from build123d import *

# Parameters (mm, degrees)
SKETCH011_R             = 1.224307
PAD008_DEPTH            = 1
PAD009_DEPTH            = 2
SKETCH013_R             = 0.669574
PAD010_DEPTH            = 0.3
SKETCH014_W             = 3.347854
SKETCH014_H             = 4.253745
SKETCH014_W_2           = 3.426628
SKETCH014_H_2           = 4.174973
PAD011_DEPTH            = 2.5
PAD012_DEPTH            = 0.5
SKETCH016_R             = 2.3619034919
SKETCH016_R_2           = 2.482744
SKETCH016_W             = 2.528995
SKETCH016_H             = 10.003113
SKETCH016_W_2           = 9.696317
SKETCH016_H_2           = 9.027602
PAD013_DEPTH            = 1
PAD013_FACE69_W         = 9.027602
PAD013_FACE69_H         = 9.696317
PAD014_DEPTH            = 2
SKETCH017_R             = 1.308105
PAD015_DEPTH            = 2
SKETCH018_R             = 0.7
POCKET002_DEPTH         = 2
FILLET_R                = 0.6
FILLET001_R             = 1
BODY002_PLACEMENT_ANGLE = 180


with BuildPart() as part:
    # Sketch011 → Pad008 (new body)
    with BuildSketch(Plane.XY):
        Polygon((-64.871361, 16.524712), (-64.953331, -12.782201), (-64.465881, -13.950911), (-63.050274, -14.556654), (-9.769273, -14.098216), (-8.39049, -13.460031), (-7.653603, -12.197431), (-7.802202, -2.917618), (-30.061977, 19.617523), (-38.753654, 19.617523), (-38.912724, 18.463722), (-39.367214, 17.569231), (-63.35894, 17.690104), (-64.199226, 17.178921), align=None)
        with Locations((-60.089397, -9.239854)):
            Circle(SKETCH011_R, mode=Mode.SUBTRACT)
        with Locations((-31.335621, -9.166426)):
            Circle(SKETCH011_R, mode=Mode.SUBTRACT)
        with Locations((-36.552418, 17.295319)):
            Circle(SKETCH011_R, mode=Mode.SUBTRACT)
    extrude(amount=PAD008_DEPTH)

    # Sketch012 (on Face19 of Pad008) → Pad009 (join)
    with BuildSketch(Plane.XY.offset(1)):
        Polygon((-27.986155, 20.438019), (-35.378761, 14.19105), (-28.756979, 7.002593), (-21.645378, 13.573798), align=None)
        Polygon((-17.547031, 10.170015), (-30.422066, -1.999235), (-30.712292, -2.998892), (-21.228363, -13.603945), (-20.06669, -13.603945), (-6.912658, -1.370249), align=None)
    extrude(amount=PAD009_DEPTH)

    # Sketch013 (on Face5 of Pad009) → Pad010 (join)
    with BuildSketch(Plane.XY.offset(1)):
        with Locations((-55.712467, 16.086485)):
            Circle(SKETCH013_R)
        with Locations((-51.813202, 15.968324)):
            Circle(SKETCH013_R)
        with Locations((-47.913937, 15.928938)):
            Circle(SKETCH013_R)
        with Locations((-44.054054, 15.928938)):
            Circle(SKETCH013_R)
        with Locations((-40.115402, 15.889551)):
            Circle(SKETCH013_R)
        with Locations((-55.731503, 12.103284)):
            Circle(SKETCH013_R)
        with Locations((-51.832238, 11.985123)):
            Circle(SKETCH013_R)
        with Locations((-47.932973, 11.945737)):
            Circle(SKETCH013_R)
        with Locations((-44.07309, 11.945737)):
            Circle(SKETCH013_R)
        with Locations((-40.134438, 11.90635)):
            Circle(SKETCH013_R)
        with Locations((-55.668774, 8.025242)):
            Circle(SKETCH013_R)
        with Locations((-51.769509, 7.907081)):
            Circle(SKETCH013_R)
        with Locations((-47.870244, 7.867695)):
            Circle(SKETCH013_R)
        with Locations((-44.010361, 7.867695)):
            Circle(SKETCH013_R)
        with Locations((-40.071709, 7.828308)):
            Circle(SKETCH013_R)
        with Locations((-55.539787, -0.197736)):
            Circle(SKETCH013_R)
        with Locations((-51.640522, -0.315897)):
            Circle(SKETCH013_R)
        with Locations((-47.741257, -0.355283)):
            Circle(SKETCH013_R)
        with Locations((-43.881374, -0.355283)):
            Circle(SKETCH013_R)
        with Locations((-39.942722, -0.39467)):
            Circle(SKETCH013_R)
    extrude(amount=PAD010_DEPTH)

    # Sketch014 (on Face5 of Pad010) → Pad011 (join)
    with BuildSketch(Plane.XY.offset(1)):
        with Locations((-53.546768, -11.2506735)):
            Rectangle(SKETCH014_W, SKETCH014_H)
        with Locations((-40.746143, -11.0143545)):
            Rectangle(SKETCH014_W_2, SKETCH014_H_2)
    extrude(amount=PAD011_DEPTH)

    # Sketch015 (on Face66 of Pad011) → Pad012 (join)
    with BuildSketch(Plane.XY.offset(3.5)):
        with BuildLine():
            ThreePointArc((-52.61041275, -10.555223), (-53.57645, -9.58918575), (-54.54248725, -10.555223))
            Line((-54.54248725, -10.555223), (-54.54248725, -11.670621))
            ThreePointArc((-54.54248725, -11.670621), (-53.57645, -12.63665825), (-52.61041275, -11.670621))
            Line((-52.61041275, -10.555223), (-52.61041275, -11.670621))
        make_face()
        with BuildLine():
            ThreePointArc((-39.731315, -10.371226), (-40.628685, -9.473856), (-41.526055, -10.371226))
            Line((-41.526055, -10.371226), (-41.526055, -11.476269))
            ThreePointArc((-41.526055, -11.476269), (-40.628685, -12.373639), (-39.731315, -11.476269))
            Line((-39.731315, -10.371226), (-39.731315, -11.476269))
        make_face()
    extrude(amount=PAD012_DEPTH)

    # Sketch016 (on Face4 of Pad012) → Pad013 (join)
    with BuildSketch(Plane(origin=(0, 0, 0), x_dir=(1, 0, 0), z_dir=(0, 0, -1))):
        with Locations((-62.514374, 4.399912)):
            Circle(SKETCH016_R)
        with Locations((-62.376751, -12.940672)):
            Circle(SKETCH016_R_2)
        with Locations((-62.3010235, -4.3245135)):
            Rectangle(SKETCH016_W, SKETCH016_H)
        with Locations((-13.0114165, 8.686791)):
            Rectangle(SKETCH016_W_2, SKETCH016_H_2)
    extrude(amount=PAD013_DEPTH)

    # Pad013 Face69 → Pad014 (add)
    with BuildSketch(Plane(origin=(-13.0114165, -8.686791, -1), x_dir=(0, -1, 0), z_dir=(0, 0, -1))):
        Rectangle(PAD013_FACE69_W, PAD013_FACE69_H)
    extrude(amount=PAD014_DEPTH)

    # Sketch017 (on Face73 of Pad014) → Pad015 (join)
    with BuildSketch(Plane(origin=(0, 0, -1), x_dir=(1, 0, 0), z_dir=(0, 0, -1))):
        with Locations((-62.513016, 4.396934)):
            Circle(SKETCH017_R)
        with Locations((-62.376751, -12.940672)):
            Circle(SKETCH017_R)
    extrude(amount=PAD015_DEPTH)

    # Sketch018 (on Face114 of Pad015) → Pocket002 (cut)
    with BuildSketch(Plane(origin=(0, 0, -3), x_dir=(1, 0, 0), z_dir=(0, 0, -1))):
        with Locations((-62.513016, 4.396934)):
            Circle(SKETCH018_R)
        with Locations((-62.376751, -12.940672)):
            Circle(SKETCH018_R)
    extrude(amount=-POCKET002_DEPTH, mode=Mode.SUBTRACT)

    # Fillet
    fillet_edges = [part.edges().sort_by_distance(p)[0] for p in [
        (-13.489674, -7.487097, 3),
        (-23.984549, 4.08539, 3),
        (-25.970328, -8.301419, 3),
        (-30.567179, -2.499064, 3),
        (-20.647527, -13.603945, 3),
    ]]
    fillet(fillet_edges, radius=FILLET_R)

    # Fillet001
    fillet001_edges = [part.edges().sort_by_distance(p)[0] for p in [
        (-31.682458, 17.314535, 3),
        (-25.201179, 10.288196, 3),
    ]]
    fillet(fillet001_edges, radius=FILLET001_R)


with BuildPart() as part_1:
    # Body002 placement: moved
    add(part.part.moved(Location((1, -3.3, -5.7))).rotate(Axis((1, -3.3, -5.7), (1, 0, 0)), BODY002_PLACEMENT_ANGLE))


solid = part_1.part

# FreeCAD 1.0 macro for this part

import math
import FreeCAD as App
import Part
import Sketcher

V = App.Vector
Q = App.Units.Quantity


def edges_at(feature, points):
    """Names of the edges that pass closest to the given points."""
    edges = feature.Shape.Edges
    near = lambda p: min(range(len(edges)), key=lambda i: edges[i].distToShape(Part.Vertex(*p))[0])
    return sorted({f"Edge{near(p) + 1}" for p in points})

doc = App.newDocument("Part")
body = doc.addObject("PartDesign::Body", "Body")

# Sketch on XY plane
sketch1 = doc.addObject("Sketcher::SketchObject", "Sketch")
body.addObject(sketch1)
sketch1.AttachmentSupport = (doc.XY_Plane, [""])
sketch1.MapMode = "FlatFace"
sketch1.addGeometry(Part.LineSegment(V(-64.9, 16.5, 0), V(-65, -12.8, 0)), False)
sketch1.addGeometry(Part.LineSegment(V(-65, -12.8, 0), V(-64.5, -14, 0)), False)
sketch1.addGeometry(Part.LineSegment(V(-64.5, -14, 0), V(-63.1, -14.6, 0)), False)
sketch1.addGeometry(Part.LineSegment(V(-63.1, -14.6, 0), V(-9.8, -14.1, 0)), False)
sketch1.addGeometry(Part.LineSegment(V(-9.8, -14.1, 0), V(-8.4, -13.5, 0)), False)
sketch1.addGeometry(Part.LineSegment(V(-8.4, -13.5, 0), V(-7.7, -12.2, 0)), False)
sketch1.addGeometry(Part.LineSegment(V(-7.7, -12.2, 0), V(-7.8, -2.9, 0)), False)
sketch1.addGeometry(Part.LineSegment(V(-7.8, -2.9, 0), V(-30.1, 19.6, 0)), False)
sketch1.addGeometry(Part.LineSegment(V(-30.1, 19.6, 0), V(-38.8, 19.6, 0)), False)
sketch1.addGeometry(Part.LineSegment(V(-38.8, 19.6, 0), V(-38.9, 18.5, 0)), False)
sketch1.addGeometry(Part.LineSegment(V(-38.9, 18.5, 0), V(-39.4, 17.6, 0)), False)
sketch1.addGeometry(Part.LineSegment(V(-39.4, 17.6, 0), V(-63.4, 17.7, 0)), False)
sketch1.addGeometry(Part.LineSegment(V(-63.4, 17.7, 0), V(-64.2, 17.2, 0)), False)
sketch1.addGeometry(Part.LineSegment(V(-64.2, 17.2, 0), V(-64.9, 16.5, 0)), False)
sketch1.addGeometry(Part.Circle(V(-60.1, -9.2, 0), V(0, 0, 1), 1.2), False)
sketch1.addGeometry(Part.Circle(V(-31.3, -9.2, 0), V(0, 0, 1), 1.2), False)
sketch1.addGeometry(Part.Circle(V(-36.6, 17.3, 0), V(0, 0, 1), 1.2), False)
sketch1.addConstraint(Sketcher.Constraint("Coincident", 0, 2, 1, 1))
sketch1.addConstraint(Sketcher.Constraint("Coincident", 1, 2, 2, 1))
sketch1.addConstraint(Sketcher.Constraint("Coincident", 2, 2, 3, 1))
sketch1.addConstraint(Sketcher.Constraint("Coincident", 3, 2, 4, 1))
sketch1.addConstraint(Sketcher.Constraint("Coincident", 4, 2, 5, 1))
sketch1.addConstraint(Sketcher.Constraint("Coincident", 5, 2, 6, 1))
sketch1.addConstraint(Sketcher.Constraint("Coincident", 6, 2, 7, 1))
sketch1.addConstraint(Sketcher.Constraint("Coincident", 7, 2, 8, 1))
sketch1.addConstraint(Sketcher.Constraint("Coincident", 8, 2, 9, 1))
sketch1.addConstraint(Sketcher.Constraint("Coincident", 9, 2, 10, 1))
sketch1.addConstraint(Sketcher.Constraint("Coincident", 10, 2, 11, 1))
sketch1.addConstraint(Sketcher.Constraint("Coincident", 11, 2, 12, 1))
sketch1.addConstraint(Sketcher.Constraint("Coincident", 12, 2, 13, 1))
sketch1.addConstraint(Sketcher.Constraint("Coincident", 13, 2, 0, 1))
sketch1.addConstraint(Sketcher.Constraint("Horizontal", 8))
sketch1.addConstraint(Sketcher.Constraint("Equal", 14, 15))
sketch1.addConstraint(Sketcher.Constraint("Equal", 15, 16))
sketch1.addConstraint(Sketcher.Constraint("Diameter", 14, Q("2.448614 mm")))
sketch1.addConstraint(Sketcher.Constraint("DistanceX", 2, 2, 3, 2, Q("53.281001 mm")))
sketch1.addConstraint(Sketcher.Constraint("DistanceY", 0, 2, -1, 1, Q("12.782201 mm")))
sketch1.addConstraint(Sketcher.Constraint("DistanceY", 2, 2, 14, 3, Q("5.3168 mm")))
sketch1.addConstraint(Sketcher.Constraint("DistanceY", 4, 2, 5, 2, Q("1.2626 mm")))
sketch1.addConstraint(Sketcher.Constraint("DistanceX", 6, 2, 5, 2, Q("0.148599 mm")))
sketch1.addConstraint(Sketcher.Constraint("DistanceY", 9, 2, 8, 2, Q("1.153801 mm")))
sketch1.addConstraint(Sketcher.Constraint("DistanceX", 12, 2, 9, 2, Q("25.286502 mm")))
sketch1.addConstraint(Sketcher.Constraint("DistanceY", 12, 2, 9, 2, Q("1.284801 mm")))
sketch1.addConstraint(Sketcher.Constraint("Distance", 1, Q("1.26629 mm")))
sketch1.addConstraint(Sketcher.Constraint("Distance", 11, Q("23.99203 mm")))
sketch1.addConstraint(Sketcher.Constraint("Distance", 12, Q("0.983559 mm")))
sketch1.addConstraint(Sketcher.Constraint("DistanceX", 8, 2, 8, 1, Q("8.691677 mm")))
sketch1.addConstraint(Sketcher.Constraint("DistanceX", 15, 3, -1, 1, Q("31.335621 mm")))
sketch1.addConstraint(Sketcher.Constraint("DistanceX", 16, 3, -1, 1, Q("36.552418 mm")))
sketch1.addConstraint(Sketcher.Constraint("DistanceY", -1, 1, 16, 3, Q("17.295319 mm")))
sketch1.addConstraint(Sketcher.Constraint("DistanceX", 0, 2, -1, 1, Q("64.953331 mm")))
sketch1.addConstraint(Sketcher.Constraint("DistanceX", 1, 2, -1, 1, Q("64.465881 mm")))
sketch1.addConstraint(Sketcher.Constraint("DistanceX", 4, 2, -1, 1, Q("8.39049 mm")))
sketch1.addConstraint(Sketcher.Constraint("DistanceY", 4, 2, -1, 1, Q("13.460031 mm")))
sketch1.addConstraint(Sketcher.Constraint("DistanceY", 6, 2, -1, 1, Q("2.917618 mm")))
sketch1.addConstraint(Sketcher.Constraint("DistanceY", -1, 1, 10, 2, Q("17.569231 mm")))
sketch1.addConstraint(Sketcher.Constraint("DistanceX", 11, 2, -1, 1, Q("63.35894 mm")))
sketch1.addConstraint(Sketcher.Constraint("DistanceY", -1, 1, 12, 2, Q("17.178921 mm")))
sketch1.addConstraint(Sketcher.Constraint("DistanceX", 13, 2, -1, 1, Q("64.871361 mm")))
sketch1.addConstraint(Sketcher.Constraint("DistanceX", 14, 3, 16, 3, Q("23.536979 mm")))
sketch1.addConstraint(Sketcher.Constraint("DistanceY", 2, 2, 15, 3, Q("5.390228 mm")))
sketch1.addConstraint(Sketcher.Constraint("DistanceY", 3, 2, 15, 3, Q("4.93179 mm")))
sketch1.addConstraint(Sketcher.Constraint("DistanceX", 3, 2, 5, 2, Q("2.11567 mm")))
sketch1.addConstraint(Sketcher.Constraint("DistanceX", 15, 3, 6, 2, Q("23.533419 mm")))
sketch1.addConstraint(Sketcher.Constraint("DistanceX", 16, 3, 7, 2, Q("6.490441 mm")))
sketch1.addConstraint(Sketcher.Constraint("DistanceY", 15, 3, 7, 2, Q("28.783949 mm")))
sketch1.addConstraint(Sketcher.Constraint("DistanceX", 9, 2, 8, 2, Q("0.15907 mm")))
sketch1.addConstraint(Sketcher.Constraint("DistanceY", 13, 2, 12, 2, Q("0.654209 mm")))
pad1 = doc.addObject("PartDesign::Pad", "Pad")
body.addObject(pad1)
pad1.Profile = sketch1
pad1.Length = 1

# Sketch on XY plane
sketch2 = doc.addObject("Sketcher::SketchObject", "Sketch001")
body.addObject(sketch2)
sketch2.AttachmentSupport = (doc.XY_Plane, [""])
sketch2.MapMode = "FlatFace"
sketch2.AttachmentOffset = App.Placement(V(0, 0, 1), App.Rotation())
sketch2.addGeometry(Part.LineSegment(V(-28, 20.4, 0), V(-35.4, 14.2, 0)), False)
sketch2.addGeometry(Part.LineSegment(V(-35.4, 14.2, 0), V(-28.8, 7, 0)), False)
sketch2.addGeometry(Part.LineSegment(V(-28.8, 7, 0), V(-21.6, 13.6, 0)), False)
sketch2.addGeometry(Part.LineSegment(V(-21.6, 13.6, 0), V(-28, 20.4, 0)), False)
sketch2.addGeometry(Part.LineSegment(V(-17.5, 10.2, 0), V(-30.4, -2, 0)), False)
sketch2.addGeometry(Part.LineSegment(V(-30.4, -2, 0), V(-30.7, -3, 0)), False)
sketch2.addGeometry(Part.LineSegment(V(-30.7, -3, 0), V(-21.2, -13.6, 0)), False)
sketch2.addGeometry(Part.LineSegment(V(-21.2, -13.6, 0), V(-20.1, -13.6, 0)), False)
sketch2.addGeometry(Part.LineSegment(V(-20.1, -13.6, 0), V(-6.9, -1.4, 0)), False)
sketch2.addGeometry(Part.LineSegment(V(-6.9, -1.4, 0), V(-17.5, 10.2, 0)), False)
sketch2.addConstraint(Sketcher.Constraint("Coincident", 0, 2, 1, 1))
sketch2.addConstraint(Sketcher.Constraint("Coincident", 1, 2, 2, 1))
sketch2.addConstraint(Sketcher.Constraint("Coincident", 2, 2, 3, 1))
sketch2.addConstraint(Sketcher.Constraint("Coincident", 3, 2, 0, 1))
sketch2.addConstraint(Sketcher.Constraint("Coincident", 4, 2, 5, 1))
sketch2.addConstraint(Sketcher.Constraint("Coincident", 5, 2, 6, 1))
sketch2.addConstraint(Sketcher.Constraint("Coincident", 6, 2, 7, 1))
sketch2.addConstraint(Sketcher.Constraint("Coincident", 7, 2, 8, 1))
sketch2.addConstraint(Sketcher.Constraint("Coincident", 8, 2, 9, 1))
sketch2.addConstraint(Sketcher.Constraint("Coincident", 9, 2, 4, 1))
sketch2.addConstraint(Sketcher.Constraint("Horizontal", 7))
sketch2.addConstraint(Sketcher.Constraint("Angle", 3, Q("132.729993 deg")))
sketch2.addConstraint(Sketcher.Constraint("DistanceX", 1, 2, 2, 2, Q("7.111601 mm")))
sketch2.addConstraint(Sketcher.Constraint("Distance", 1, Q("9.773531 mm")))
sketch2.addConstraint(Sketcher.Constraint("Distance", 6, Q("14.227159 mm")))
sketch2.addConstraint(Sketcher.Constraint("DistanceX", 7, 1, 7, 2, Q("1.161673 mm")))
sketch2.addConstraint(Sketcher.Constraint("DistanceX", 0, 2, -1, 1, Q("35.378761 mm")))
sketch2.addConstraint(Sketcher.Constraint("DistanceY", -1, 1, 0, 2, Q("14.19105 mm")))
sketch2.addConstraint(Sketcher.Constraint("DistanceX", 1, 2, -1, 1, Q("28.756979 mm")))
sketch2.addConstraint(Sketcher.Constraint("DistanceY", -1, 1, 3, 2, Q("20.438019 mm")))
sketch2.addConstraint(Sketcher.Constraint("DistanceX", 7, 2, -1, 1, Q("20.06669 mm")))
sketch2.addConstraint(Sketcher.Constraint("DistanceX", 8, 2, -1, 1, Q("6.912658 mm")))
sketch2.addConstraint(Sketcher.Constraint("DistanceY", 8, 2, -1, 1, Q("1.370249 mm")))
sketch2.addConstraint(Sketcher.Constraint("DistanceX", 9, 2, -1, 1, Q("17.547031 mm")))
sketch2.addConstraint(Sketcher.Constraint("DistanceY", 2, 2, 3, 2, Q("6.864221 mm")))
sketch2.addConstraint(Sketcher.Constraint("DistanceX", 4, 2, 3, 2, Q("2.435911 mm")))
sketch2.addConstraint(Sketcher.Constraint("DistanceX", 0, 2, 5, 2, Q("4.666469 mm")))
sketch2.addConstraint(Sketcher.Constraint("DistanceY", 5, 2, 2, 2, Q("16.57269 mm")))
sketch2.addConstraint(Sketcher.Constraint("DistanceY", 6, 2, 4, 2, Q("11.60471 mm")))
sketch2.addConstraint(Sketcher.Constraint("DistanceY", 1, 2, 9, 2, Q("3.167422 mm")))
pad2 = doc.addObject("PartDesign::Pad", "Pad001")
body.addObject(pad2)
pad2.Profile = sketch2
pad2.Length = 2

# Sketch on XY plane
sketch3 = doc.addObject("Sketcher::SketchObject", "Sketch002")
body.addObject(sketch3)
sketch3.AttachmentSupport = (doc.XY_Plane, [""])
sketch3.MapMode = "FlatFace"
sketch3.AttachmentOffset = App.Placement(V(0, 0, 1), App.Rotation())
sketch3.addGeometry(Part.Circle(V(-55.7, 16.1, 0), V(0, 0, 1), 0.7), False)
sketch3.addGeometry(Part.Circle(V(-51.8, 16, 0), V(0, 0, 1), 0.7), False)
sketch3.addGeometry(Part.Circle(V(-47.9, 15.9, 0), V(0, 0, 1), 0.7), False)
sketch3.addGeometry(Part.Circle(V(-44.1, 15.9, 0), V(0, 0, 1), 0.7), False)
sketch3.addGeometry(Part.Circle(V(-40.1, 15.9, 0), V(0, 0, 1), 0.7), False)
sketch3.addGeometry(Part.Circle(V(-55.7, 12.1, 0), V(0, 0, 1), 0.7), False)
sketch3.addGeometry(Part.Circle(V(-51.8, 12, 0), V(0, 0, 1), 0.7), False)
sketch3.addGeometry(Part.Circle(V(-47.9, 11.9, 0), V(0, 0, 1), 0.7), False)
sketch3.addGeometry(Part.Circle(V(-44.1, 11.9, 0), V(0, 0, 1), 0.7), False)
sketch3.addGeometry(Part.Circle(V(-40.1, 11.9, 0), V(0, 0, 1), 0.7), False)
sketch3.addGeometry(Part.Circle(V(-55.7, 8, 0), V(0, 0, 1), 0.7), False)
sketch3.addGeometry(Part.Circle(V(-51.8, 7.9, 0), V(0, 0, 1), 0.7), False)
sketch3.addGeometry(Part.Circle(V(-47.9, 7.9, 0), V(0, 0, 1), 0.7), False)
sketch3.addGeometry(Part.Circle(V(-44, 7.9, 0), V(0, 0, 1), 0.7), False)
sketch3.addGeometry(Part.Circle(V(-40.1, 7.8, 0), V(0, 0, 1), 0.7), False)
sketch3.addGeometry(Part.Circle(V(-55.5, -0.2, 0), V(0, 0, 1), 0.7), False)
sketch3.addGeometry(Part.Circle(V(-51.6, -0.3, 0), V(0, 0, 1), 0.7), False)
sketch3.addGeometry(Part.Circle(V(-47.7, -0.4, 0), V(0, 0, 1), 0.7), False)
sketch3.addGeometry(Part.Circle(V(-43.9, -0.4, 0), V(0, 0, 1), 0.7), False)
sketch3.addGeometry(Part.Circle(V(-39.9, -0.4, 0), V(0, 0, 1), 0.7), False)
sketch3.addConstraint(Sketcher.Constraint("Equal", 0, 1))
sketch3.addConstraint(Sketcher.Constraint("Equal", 1, 2))
sketch3.addConstraint(Sketcher.Constraint("Equal", 2, 3))
sketch3.addConstraint(Sketcher.Constraint("Equal", 3, 4))
sketch3.addConstraint(Sketcher.Constraint("Equal", 4, 5))
sketch3.addConstraint(Sketcher.Constraint("Equal", 5, 6))
sketch3.addConstraint(Sketcher.Constraint("Equal", 6, 7))
sketch3.addConstraint(Sketcher.Constraint("Equal", 7, 8))
sketch3.addConstraint(Sketcher.Constraint("Equal", 8, 9))
sketch3.addConstraint(Sketcher.Constraint("Equal", 9, 10))
sketch3.addConstraint(Sketcher.Constraint("Equal", 10, 11))
sketch3.addConstraint(Sketcher.Constraint("Equal", 11, 12))
sketch3.addConstraint(Sketcher.Constraint("Equal", 12, 13))
sketch3.addConstraint(Sketcher.Constraint("Equal", 13, 14))
sketch3.addConstraint(Sketcher.Constraint("Equal", 14, 15))
sketch3.addConstraint(Sketcher.Constraint("Equal", 15, 16))
sketch3.addConstraint(Sketcher.Constraint("Equal", 16, 17))
sketch3.addConstraint(Sketcher.Constraint("Equal", 17, 18))
sketch3.addConstraint(Sketcher.Constraint("Equal", 18, 19))
sketch3.addConstraint(Sketcher.Constraint("Horizontal", 2, 3, 3, 3))
sketch3.addConstraint(Sketcher.Constraint("Horizontal", 7, 3, 8, 3))
sketch3.addConstraint(Sketcher.Constraint("Horizontal", 12, 3, 13, 3))
sketch3.addConstraint(Sketcher.Constraint("Horizontal", 17, 3, 18, 3))
sketch3.addConstraint(Sketcher.Constraint("Diameter", 0, Q("1.339148 mm")))
sketch3.addConstraint(Sketcher.Constraint("DistanceX", 1, 3, -1, 1, Q("51.813202 mm")))
sketch3.addConstraint(Sketcher.Constraint("DistanceX", 1, 3, 4, 3, Q("11.6978 mm")))
sketch3.addConstraint(Sketcher.Constraint("DistanceY", 5, 3, 0, 3, Q("3.983201 mm")))
sketch3.addConstraint(Sketcher.Constraint("DistanceX", 5, 3, 1, 3, Q("3.918301 mm")))
sketch3.addConstraint(Sketcher.Constraint("DistanceY", 6, 3, 1, 3, Q("3.983201 mm")))
sketch3.addConstraint(Sketcher.Constraint("DistanceX", 6, 3, 2, 3, Q("3.918301 mm")))
sketch3.addConstraint(Sketcher.Constraint("DistanceY", 7, 3, 2, 3, Q("3.983201 mm")))
sketch3.addConstraint(Sketcher.Constraint("DistanceY", 9, 3, 4, 3, Q("3.983201 mm")))
sketch3.addConstraint(Sketcher.Constraint("DistanceX", 2, 3, 9, 3, Q("7.779499 mm")))
sketch3.addConstraint(Sketcher.Constraint("DistanceX", 10, 3, 7, 3, Q("7.735801 mm")))
sketch3.addConstraint(Sketcher.Constraint("DistanceY", -1, 1, 4, 3, Q("15.889551 mm")))
sketch3.addConstraint(Sketcher.Constraint("DistanceX", 8, 3, -1, 1, Q("44.07309 mm")))
sketch3.addConstraint(Sketcher.Constraint("DistanceX", 9, 3, -1, 1, Q("40.134438 mm")))
sketch3.addConstraint(Sketcher.Constraint("DistanceX", 11, 3, -1, 1, Q("51.769509 mm")))
sketch3.addConstraint(Sketcher.Constraint("DistanceY", -1, 1, 11, 3, Q("7.907081 mm")))
sketch3.addConstraint(Sketcher.Constraint("DistanceX", 13, 3, -1, 1, Q("44.010361 mm")))
sketch3.addConstraint(Sketcher.Constraint("DistanceX", 14, 3, -1, 1, Q("40.071709 mm")))
sketch3.addConstraint(Sketcher.Constraint("DistanceX", 16, 3, -1, 1, Q("51.640522 mm")))
sketch3.addConstraint(Sketcher.Constraint("DistanceY", 19, 3, -1, 1, Q("0.39467 mm")))
sketch3.addConstraint(Sketcher.Constraint("DistanceY", 1, 3, 0, 3, Q("0.118161 mm")))
sketch3.addConstraint(Sketcher.Constraint("DistanceX", 0, 3, 2, 3, Q("7.79853 mm")))
sketch3.addConstraint(Sketcher.Constraint("DistanceX", 3, 3, 4, 3, Q("3.938652 mm")))
sketch3.addConstraint(Sketcher.Constraint("DistanceX", 7, 3, 3, 3, Q("3.878919 mm")))
sketch3.addConstraint(Sketcher.Constraint("DistanceY", 9, 3, 3, 3, Q("4.022588 mm")))
sketch3.addConstraint(Sketcher.Constraint("DistanceY", 10, 3, 6, 3, Q("3.959881 mm")))
sketch3.addConstraint(Sketcher.Constraint("DistanceY", 11, 3, 10, 3, Q("0.118161 mm")))
sketch3.addConstraint(Sketcher.Constraint("DistanceX", 7, 3, 12, 3, Q("0.062729 mm")))
sketch3.addConstraint(Sketcher.Constraint("DistanceY", 12, 3, 7, 3, Q("4.078042 mm")))
sketch3.addConstraint(Sketcher.Constraint("DistanceY", 14, 3, 8, 3, Q("4.117429 mm")))
sketch3.addConstraint(Sketcher.Constraint("DistanceY", 15, 3, 10, 3, Q("8.222978 mm")))
sketch3.addConstraint(Sketcher.Constraint("DistanceX", 15, 3, 6, 3, Q("3.707549 mm")))
sketch3.addConstraint(Sketcher.Constraint("DistanceY", 16, 3, 15, 3, Q("0.118161 mm")))
sketch3.addConstraint(Sketcher.Constraint("DistanceX", 15, 3, 17, 3, Q("7.79853 mm")))
sketch3.addConstraint(Sketcher.Constraint("DistanceY", 17, 3, 12, 3, Q("8.222978 mm")))
sketch3.addConstraint(Sketcher.Constraint("DistanceX", 12, 3, 18, 3, Q("3.98887 mm")))
sketch3.addConstraint(Sketcher.Constraint("DistanceX", 18, 3, 19, 3, Q("3.938652 mm")))
pad3 = doc.addObject("PartDesign::Pad", "Pad002")
body.addObject(pad3)
pad3.Profile = sketch3
pad3.Length = 0.3

# Sketch on XY plane
sketch4 = doc.addObject("Sketcher::SketchObject", "Sketch003")
body.addObject(sketch4)
sketch4.AttachmentSupport = (doc.XY_Plane, [""])
sketch4.MapMode = "FlatFace"
sketch4.AttachmentOffset = App.Placement(V(0, 0, 1), App.Rotation())
sketch4.addGeometry(Part.LineSegment(V(-55.2, -9.1, 0), V(-55.2, -13.4, 0)), False)
sketch4.addGeometry(Part.LineSegment(V(-55.2, -13.4, 0), V(-51.9, -13.4, 0)), False)
sketch4.addGeometry(Part.LineSegment(V(-51.9, -13.4, 0), V(-51.9, -9.1, 0)), False)
sketch4.addGeometry(Part.LineSegment(V(-51.9, -9.1, 0), V(-55.2, -9.1, 0)), False)
sketch4.addGeometry(Part.LineSegment(V(-42.5, -8.9, 0), V(-42.5, -13.1, 0)), False)
sketch4.addGeometry(Part.LineSegment(V(-42.5, -13.1, 0), V(-39, -13.1, 0)), False)
sketch4.addGeometry(Part.LineSegment(V(-39, -13.1, 0), V(-39, -8.9, 0)), False)
sketch4.addGeometry(Part.LineSegment(V(-39, -8.9, 0), V(-42.5, -8.9, 0)), False)
sketch4.addConstraint(Sketcher.Constraint("Coincident", 0, 2, 1, 1))
sketch4.addConstraint(Sketcher.Constraint("Coincident", 1, 2, 2, 1))
sketch4.addConstraint(Sketcher.Constraint("Coincident", 2, 2, 3, 1))
sketch4.addConstraint(Sketcher.Constraint("Coincident", 3, 2, 0, 1))
sketch4.addConstraint(Sketcher.Constraint("Coincident", 4, 2, 5, 1))
sketch4.addConstraint(Sketcher.Constraint("Coincident", 5, 2, 6, 1))
sketch4.addConstraint(Sketcher.Constraint("Coincident", 6, 2, 7, 1))
sketch4.addConstraint(Sketcher.Constraint("Coincident", 7, 2, 4, 1))
sketch4.addConstraint(Sketcher.Constraint("Vertical", 0))
sketch4.addConstraint(Sketcher.Constraint("Horizontal", 1))
sketch4.addConstraint(Sketcher.Constraint("Vertical", 2))
sketch4.addConstraint(Sketcher.Constraint("Horizontal", 3))
sketch4.addConstraint(Sketcher.Constraint("Vertical", 4))
sketch4.addConstraint(Sketcher.Constraint("Horizontal", 5))
sketch4.addConstraint(Sketcher.Constraint("Vertical", 6))
sketch4.addConstraint(Sketcher.Constraint("Horizontal", 7))
sketch4.addConstraint(Sketcher.Constraint("DistanceX", 5, 1, 5, 2, Q("3.426628 mm")))
sketch4.addConstraint(Sketcher.Constraint("DistanceY", 2, 2, -1, 1, Q("9.123801 mm")))
sketch4.addConstraint(Sketcher.Constraint("DistanceX", 1, 1, 1, 2, Q("3.347854 mm")))
sketch4.addConstraint(Sketcher.Constraint("DistanceY", 0, 2, 0, 1, Q("4.253745 mm")))
sketch4.addConstraint(Sketcher.Constraint("DistanceY", 4, 2, 4, 1, Q("4.174973 mm")))
sketch4.addConstraint(Sketcher.Constraint("DistanceX", 1, 2, -1, 1, Q("51.872841 mm")))
sketch4.addConstraint(Sketcher.Constraint("DistanceY", 4, 2, -1, 1, Q("13.101841 mm")))
sketch4.addConstraint(Sketcher.Constraint("DistanceX", 5, 2, -1, 1, Q("39.032829 mm")))
pad4 = doc.addObject("PartDesign::Pad", "Pad003")
body.addObject(pad4)
pad4.Profile = sketch4
pad4.Length = 2.5

# Sketch on XY plane
sketch5 = doc.addObject("Sketcher::SketchObject", "Sketch004")
body.addObject(sketch5)
sketch5.AttachmentSupport = (doc.XY_Plane, [""])
sketch5.MapMode = "FlatFace"
sketch5.AttachmentOffset = App.Placement(V(0, 0, 3.5), App.Rotation())
sketch5.addGeometry(Part.ArcOfCircle(Part.Circle(V(-53.6, -10.6, 0), V(0, 0, 1), 1), math.radians(0), math.radians(180)), False)
sketch5.addGeometry(Part.LineSegment(V(-54.5, -10.6, 0), V(-54.5, -11.7, 0)), False)
sketch5.addGeometry(Part.ArcOfCircle(Part.Circle(V(-53.6, -11.7, 0), V(0, 0, 1), 1), math.radians(180), math.radians(360)), False)
sketch5.addGeometry(Part.LineSegment(V(-52.6, -11.7, 0), V(-52.6, -10.6, 0)), False)
sketch5.addGeometry(Part.ArcOfCircle(Part.Circle(V(-40.6, -10.4, 0), V(0, 0, 1), 0.9), math.radians(0), math.radians(180)), False)
sketch5.addGeometry(Part.LineSegment(V(-41.5, -10.4, 0), V(-41.5, -11.5, 0)), False)
sketch5.addGeometry(Part.ArcOfCircle(Part.Circle(V(-40.6, -11.5, 0), V(0, 0, 1), 0.9), math.radians(180), math.radians(360)), False)
sketch5.addGeometry(Part.LineSegment(V(-39.7, -11.5, 0), V(-39.7, -10.4, 0)), False)
sketch5.addConstraint(Sketcher.Constraint("Tangent", 0, 2, 1, 1))
sketch5.addConstraint(Sketcher.Constraint("Tangent", 1, 2, 2, 1))
sketch5.addConstraint(Sketcher.Constraint("Tangent", 2, 2, 3, 1))
sketch5.addConstraint(Sketcher.Constraint("Tangent", 3, 2, 0, 1))
sketch5.addConstraint(Sketcher.Constraint("Tangent", 4, 2, 5, 1))
sketch5.addConstraint(Sketcher.Constraint("Tangent", 5, 2, 6, 1))
sketch5.addConstraint(Sketcher.Constraint("Tangent", 6, 2, 7, 1))
sketch5.addConstraint(Sketcher.Constraint("Tangent", 7, 2, 4, 1))
sketch5.addConstraint(Sketcher.Constraint("Vertical", 1))
sketch5.addConstraint(Sketcher.Constraint("Vertical", 3))
sketch5.addConstraint(Sketcher.Constraint("Vertical", 5))
sketch5.addConstraint(Sketcher.Constraint("Vertical", 7))
sketch5.addConstraint(Sketcher.Constraint("Radius", 4, Q("0.89737 mm")))
sketch5.addConstraint(Sketcher.Constraint("DistanceY", 1, 2, 1, 1, Q("1.115398 mm")))
sketch5.addConstraint(Sketcher.Constraint("Radius", 0, Q("0.966037 mm")))
sketch5.addConstraint(Sketcher.Constraint("DistanceY", 5, 2, 5, 1, Q("1.105043 mm")))
sketch5.addConstraint(Sketcher.Constraint("DistanceX", 0, 3, -1, 1, Q("53.57645 mm")))
sketch5.addConstraint(Sketcher.Constraint("DistanceY", 2, 3, -1, 1, Q("11.670621 mm")))
sketch5.addConstraint(Sketcher.Constraint("DistanceY", 6, 3, -1, 1, Q("11.476269 mm")))
sketch5.addConstraint(Sketcher.Constraint("DistanceX", 4, 3, -1, 1, Q("40.628685 mm")))
pad5 = doc.addObject("PartDesign::Pad", "Pad004")
body.addObject(pad5)
pad5.Profile = sketch5
pad5.Length = 0.5

# Sketch on XY plane
sketch6 = doc.addObject("Sketcher::SketchObject", "Sketch005")
body.addObject(sketch6)
sketch6.AttachmentSupport = (doc.XY_Plane, [""])
sketch6.MapMode = "FlatFace"
sketch6.addGeometry(Part.Circle(V(-62.5, -4.4, 0), V(0, 0, 1), 2.4), False)
sketch6.addGeometry(Part.Circle(V(-62.4, 12.9, 0), V(0, 0, 1), 2.5), False)
sketch6.addGeometry(Part.LineSegment(V(-63.6, -0.7, 0), V(-63.6, 9.3, 0)), False)
sketch6.addGeometry(Part.LineSegment(V(-63.6, 9.3, 0), V(-61, 9.3, 0)), False)
sketch6.addGeometry(Part.LineSegment(V(-61, 9.3, 0), V(-61, -0.7, 0)), False)
sketch6.addGeometry(Part.LineSegment(V(-61, -0.7, 0), V(-63.6, -0.7, 0)), False)
sketch6.addGeometry(Part.LineSegment(V(-17.9, -13.2, 0), V(-17.9, -4.2, 0)), False)
sketch6.addGeometry(Part.LineSegment(V(-17.9, -4.2, 0), V(-8.2, -4.2, 0)), False)
sketch6.addGeometry(Part.LineSegment(V(-8.2, -4.2, 0), V(-8.2, -13.2, 0)), False)
sketch6.addGeometry(Part.LineSegment(V(-8.2, -13.2, 0), V(-17.9, -13.2, 0)), False)
sketch6.addConstraint(Sketcher.Constraint("Coincident", 2, 2, 3, 1))
sketch6.addConstraint(Sketcher.Constraint("Coincident", 3, 2, 4, 1))
sketch6.addConstraint(Sketcher.Constraint("Coincident", 4, 2, 5, 1))
sketch6.addConstraint(Sketcher.Constraint("Coincident", 5, 2, 2, 1))
sketch6.addConstraint(Sketcher.Constraint("Coincident", 6, 2, 7, 1))
sketch6.addConstraint(Sketcher.Constraint("Coincident", 7, 2, 8, 1))
sketch6.addConstraint(Sketcher.Constraint("Coincident", 8, 2, 9, 1))
sketch6.addConstraint(Sketcher.Constraint("Coincident", 9, 2, 6, 1))
sketch6.addConstraint(Sketcher.Constraint("Vertical", 2))
sketch6.addConstraint(Sketcher.Constraint("Horizontal", 3))
sketch6.addConstraint(Sketcher.Constraint("Vertical", 4))
sketch6.addConstraint(Sketcher.Constraint("Horizontal", 5))
sketch6.addConstraint(Sketcher.Constraint("Vertical", 6))
sketch6.addConstraint(Sketcher.Constraint("Horizontal", 7))
sketch6.addConstraint(Sketcher.Constraint("Vertical", 8))
sketch6.addConstraint(Sketcher.Constraint("Horizontal", 9))
sketch6.addConstraint(Sketcher.Constraint("Diameter", 0, Q("4.723807 mm")))
sketch6.addConstraint(Sketcher.Constraint("Diameter", 1, Q("4.965488 mm")))
sketch6.addConstraint(Sketcher.Constraint("DistanceY", 2, 2, 1, 3, Q("3.614602 mm")))
sketch6.addConstraint(Sketcher.Constraint("DistanceX", 0, 3, 6, 2, Q("44.654799 mm")))
sketch6.addConstraint(Sketcher.Constraint("DistanceX", 3, 1, 3, 2, Q("2.528995 mm")))
sketch6.addConstraint(Sketcher.Constraint("DistanceX", 7, 1, 7, 2, Q("9.696317 mm")))
sketch6.addConstraint(Sketcher.Constraint("DistanceY", 2, 1, 2, 2, Q("10.003113 mm")))
sketch6.addConstraint(Sketcher.Constraint("DistanceY", 6, 1, 6, 2, Q("9.027602 mm")))
sketch6.addConstraint(Sketcher.Constraint("DistanceY", 0, 3, -1, 1, Q("4.399912 mm")))
sketch6.addConstraint(Sketcher.Constraint("DistanceX", 1, 3, -1, 1, Q("62.376751 mm")))
sketch6.addConstraint(Sketcher.Constraint("DistanceY", -1, 1, 1, 3, Q("12.940672 mm")))
sketch6.addConstraint(Sketcher.Constraint("DistanceX", 2, 2, -1, 1, Q("63.565521 mm")))
sketch6.addConstraint(Sketcher.Constraint("DistanceY", 6, 2, -1, 1, Q("4.17299 mm")))
sketch6.addConstraint(Sketcher.Constraint("DistanceX", 7, 2, -1, 1, Q("8.163258 mm")))
pad6 = doc.addObject("PartDesign::Pad", "Pad005")
body.addObject(pad6)
pad6.Profile = sketch6
pad6.Length = 1
pad6.Reversed = True

# Sketch on XY plane
sketch7 = doc.addObject("Sketcher::SketchObject", "Sketch006")
body.addObject(sketch7)
sketch7.AttachmentSupport = (doc.XY_Plane, [""])
sketch7.MapMode = "FlatFace"
sketch7.AttachmentOffset = App.Placement(V(0, 0, -1), App.Rotation())
sketch7.addGeometry(Part.LineSegment(V(-18, -4, 0), V(-8, -4, 0)), False)
sketch7.addGeometry(Part.LineSegment(V(-8, -4, 0), V(-8, -13, 0)), False)
sketch7.addGeometry(Part.LineSegment(V(-8, -13, 0), V(-18, -13, 0)), False)
sketch7.addGeometry(Part.LineSegment(V(-18, -13, 0), V(-18, -4, 0)), False)
sketch7.addConstraint(Sketcher.Constraint("Coincident", 0, 2, 1, 1))
sketch7.addConstraint(Sketcher.Constraint("Coincident", 1, 2, 2, 1))
sketch7.addConstraint(Sketcher.Constraint("Coincident", 2, 2, 3, 1))
sketch7.addConstraint(Sketcher.Constraint("Coincident", 3, 2, 0, 1))
sketch7.addConstraint(Sketcher.Constraint("Horizontal", 0))
sketch7.addConstraint(Sketcher.Constraint("Vertical", 1))
sketch7.addConstraint(Sketcher.Constraint("Horizontal", 2))
sketch7.addConstraint(Sketcher.Constraint("Vertical", 3))
sketch7.addConstraint(Sketcher.Constraint("DistanceX", 0, 1, 0, 2, Q("9.696317 mm")))
sketch7.addConstraint(Sketcher.Constraint("DistanceY", 1, 2, 1, 1, Q("9.027602 mm")))
sketch7.addConstraint(Sketcher.Constraint("DistanceX", 0, 2, -1, 1, Q("8.163258 mm")))
sketch7.addConstraint(Sketcher.Constraint("DistanceY", 0, 2, -1, 1, Q("4.17299 mm")))
pad7 = doc.addObject("PartDesign::Pad", "Pad006")
body.addObject(pad7)
pad7.Profile = sketch7
pad7.Length = 2
pad7.Reversed = True

# Sketch on XY plane
sketch8 = doc.addObject("Sketcher::SketchObject", "Sketch007")
body.addObject(sketch8)
sketch8.AttachmentSupport = (doc.XY_Plane, [""])
sketch8.MapMode = "FlatFace"
sketch8.AttachmentOffset = App.Placement(V(0, 0, -1), App.Rotation())
sketch8.addGeometry(Part.Circle(V(-62.5, -4.4, 0), V(0, 0, 1), 1.3), False)
sketch8.addGeometry(Part.Circle(V(-62.4, 12.9, 0), V(0, 0, 1), 1.3), False)
sketch8.addConstraint(Sketcher.Constraint("Equal", 0, 1))
sketch8.addConstraint(Sketcher.Constraint("Diameter", 0, Q("2.61621 mm")))
sketch8.addConstraint(Sketcher.Constraint("DistanceX", 1, 3, -1, 1, Q("62.376751 mm")))
sketch8.addConstraint(Sketcher.Constraint("DistanceY", -1, 1, 1, 3, Q("12.940672 mm")))
sketch8.addConstraint(Sketcher.Constraint("DistanceX", 0, 3, -1, 1, Q("62.513016 mm")))
sketch8.addConstraint(Sketcher.Constraint("DistanceY", 0, 3, -1, 1, Q("4.396934 mm")))
pad8 = doc.addObject("PartDesign::Pad", "Pad007")
body.addObject(pad8)
pad8.Profile = sketch8
pad8.Length = 2
pad8.Reversed = True

# Sketch on XY plane
sketch9 = doc.addObject("Sketcher::SketchObject", "Sketch008")
body.addObject(sketch9)
sketch9.AttachmentSupport = (doc.XY_Plane, [""])
sketch9.MapMode = "FlatFace"
sketch9.AttachmentOffset = App.Placement(V(0, 0, -3), App.Rotation())
sketch9.addGeometry(Part.Circle(V(-62.5, -4.4, 0), V(0, 0, 1), 0.7), False)
sketch9.addGeometry(Part.Circle(V(-62.4, 12.9, 0), V(0, 0, 1), 0.7), False)
sketch9.addConstraint(Sketcher.Constraint("Equal", 0, 1))
sketch9.addConstraint(Sketcher.Constraint("Diameter", 0, Q("1.4 mm")))
sketch9.addConstraint(Sketcher.Constraint("DistanceX", 1, 3, -1, 1, Q("62.376751 mm")))
sketch9.addConstraint(Sketcher.Constraint("DistanceY", -1, 1, 1, 3, Q("12.940672 mm")))
sketch9.addConstraint(Sketcher.Constraint("DistanceX", 0, 3, -1, 1, Q("62.513016 mm")))
sketch9.addConstraint(Sketcher.Constraint("DistanceY", 0, 3, -1, 1, Q("4.396934 mm")))
pocket1 = doc.addObject("PartDesign::Pocket", "Pocket")
body.addObject(pocket1)
pocket1.Profile = sketch9
pocket1.Length = 2
pocket1.Reversed = True
doc.recompute()

fillet = doc.addObject("PartDesign::Fillet", "Fillet")
body.addObject(fillet)
fillet.Base = (pocket1, edges_at(pocket1, [
    (-13.49, -7.487, 3),
    (-23.985, 4.085, 3),
    (-25.97, -8.301, 3),
    (-30.567, -2.499, 3),
    (-20.648, -13.604, 3),
]))
fillet.Radius = 0.6
doc.recompute()

fillet2 = doc.addObject("PartDesign::Fillet", "Fillet001")
body.addObject(fillet2)
fillet2.Base = (fillet, edges_at(fillet, [(-31.682, 17.315, 3), (-25.201, 10.288, 3)]))
fillet2.Radius = 1
body2 = doc.addObject("PartDesign::Body", "Body001")
doc.recompute()

body.Placement = App.Placement(V(1, -3.3, -5.7), App.Rotation(V(1, 0, 0), 180))
boolean = doc.addObject("PartDesign::Boolean", "Boolean")
body2.addObject(boolean)
boolean.Type = "Fuse"
boolean.addObjects([body])

doc.recompute()
